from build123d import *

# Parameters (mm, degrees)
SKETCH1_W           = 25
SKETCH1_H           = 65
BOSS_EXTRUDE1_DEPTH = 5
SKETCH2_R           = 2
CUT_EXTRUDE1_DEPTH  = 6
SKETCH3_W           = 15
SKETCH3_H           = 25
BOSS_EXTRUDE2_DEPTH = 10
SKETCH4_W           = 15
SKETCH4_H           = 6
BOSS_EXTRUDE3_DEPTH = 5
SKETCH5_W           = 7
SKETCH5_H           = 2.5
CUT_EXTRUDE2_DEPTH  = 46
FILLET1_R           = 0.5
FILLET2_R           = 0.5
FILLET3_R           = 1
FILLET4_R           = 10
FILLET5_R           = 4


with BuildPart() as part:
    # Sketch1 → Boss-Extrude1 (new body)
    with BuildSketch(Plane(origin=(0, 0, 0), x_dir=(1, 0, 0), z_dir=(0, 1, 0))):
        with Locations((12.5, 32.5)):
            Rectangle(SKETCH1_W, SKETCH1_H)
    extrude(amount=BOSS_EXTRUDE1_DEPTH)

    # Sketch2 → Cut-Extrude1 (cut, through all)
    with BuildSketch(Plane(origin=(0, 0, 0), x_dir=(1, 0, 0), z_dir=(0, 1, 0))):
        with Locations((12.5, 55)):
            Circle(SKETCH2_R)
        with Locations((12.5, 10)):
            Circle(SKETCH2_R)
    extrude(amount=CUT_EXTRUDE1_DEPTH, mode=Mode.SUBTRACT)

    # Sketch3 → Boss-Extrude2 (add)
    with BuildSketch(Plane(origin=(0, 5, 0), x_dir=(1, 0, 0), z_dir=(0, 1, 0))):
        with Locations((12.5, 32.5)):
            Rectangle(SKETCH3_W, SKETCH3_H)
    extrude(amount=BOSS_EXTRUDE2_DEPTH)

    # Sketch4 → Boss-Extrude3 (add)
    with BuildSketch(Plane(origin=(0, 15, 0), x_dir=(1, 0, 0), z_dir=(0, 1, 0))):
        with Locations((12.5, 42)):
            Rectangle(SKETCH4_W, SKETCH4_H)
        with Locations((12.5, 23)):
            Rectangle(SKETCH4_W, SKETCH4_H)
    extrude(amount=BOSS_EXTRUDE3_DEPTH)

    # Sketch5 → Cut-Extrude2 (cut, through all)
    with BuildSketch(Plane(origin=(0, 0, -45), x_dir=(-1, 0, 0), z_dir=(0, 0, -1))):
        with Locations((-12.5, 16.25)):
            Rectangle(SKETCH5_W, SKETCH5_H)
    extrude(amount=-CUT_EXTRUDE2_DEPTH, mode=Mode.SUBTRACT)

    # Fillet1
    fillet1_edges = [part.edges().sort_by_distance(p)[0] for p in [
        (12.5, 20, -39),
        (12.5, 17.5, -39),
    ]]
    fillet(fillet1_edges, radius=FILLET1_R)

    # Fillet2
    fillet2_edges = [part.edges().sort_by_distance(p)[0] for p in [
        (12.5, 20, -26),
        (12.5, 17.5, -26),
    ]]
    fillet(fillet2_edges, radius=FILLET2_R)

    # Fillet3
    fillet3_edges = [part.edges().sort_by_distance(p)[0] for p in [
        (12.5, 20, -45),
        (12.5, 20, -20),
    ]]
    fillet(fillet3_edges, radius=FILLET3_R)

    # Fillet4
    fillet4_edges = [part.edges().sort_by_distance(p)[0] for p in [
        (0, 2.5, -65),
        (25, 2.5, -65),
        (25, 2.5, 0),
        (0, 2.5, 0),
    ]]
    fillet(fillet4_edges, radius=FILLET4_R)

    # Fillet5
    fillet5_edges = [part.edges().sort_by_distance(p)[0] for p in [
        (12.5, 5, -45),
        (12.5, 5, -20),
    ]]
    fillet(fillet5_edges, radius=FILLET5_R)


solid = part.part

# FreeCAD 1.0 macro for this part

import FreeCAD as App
import Part
import Sketcher

V = App.Vector
Q = App.Units.Quantity


def edges_at(feature, points):
    """Names of the edges that pass closest to the given points."""
    edges = feature.Shape.Edges
    near = lambda p: min(range(len(edges)), key=lambda i: edges[i].distToShape(Part.Vertex(*p))[0])
    return sorted({f"Edge{near(p) + 1}" for p in points})


def add_polygon(sketch, points):
    """Adds a closed chain of lines whose ends are joined by coincident constraints."""
    first, n = sketch.GeometryCount, len(points)
    for a, b in zip(points, points[1:] + points[:1]):
        sketch.addGeometry(Part.LineSegment(App.Vector(*a, 0), App.Vector(*b, 0)), False)
    for i in range(n):
        sketch.addConstraint(Sketcher.Constraint("Coincident", first + i, 2, first + (i + 1) % n, 1))

doc = App.newDocument("Part")
params = doc.addObject("Spreadsheet::Sheet", "Params")
for row, (alias, value) in enumerate([
    ("sketch1_width", "25 mm"),
    ("sketch1_height", "65 mm"),
    ("pad1_length", "5 mm"),
    ("sketch2_diameter", "4 mm"),
    ("sketch3_width", "15 mm"),
    ("sketch3_height", "25 mm"),
    ("pad2_length", "10 mm"),
    ("sketch4_width", "15 mm"),
    ("sketch4_height", "6 mm"),
    ("pad3_length", "5 mm"),
    ("sketch5_width", "7 mm"),
    ("sketch5_height", "2.5 mm"),
    ("fillet_radius", "0.5 mm"),
    ("fillet2_radius", "0.5 mm"),
    ("fillet3_radius", "1 mm"),
    ("fillet4_radius", "10 mm"),
    ("fillet5_radius", "4 mm"),
], start=1):
    params.set(f"A{row}", alias)
    params.set(f"B{row}", "=" + value)
    params.setAlias(f"B{row}", alias)

body = doc.addObject("PartDesign::Body", "Body")

# Sketch on XZ plane
sketch1 = body.newObject("Sketcher::SketchObject", "Sketch")
sketch1.AttachmentSupport = (doc.getObject("XZ_Plane"), [""])
sketch1.MapMode = "FlatFace"
add_polygon(sketch1, [(0, -65), (0, 0), (25, 0), (25, -65)])  # lines 0-3
sketch1.addConstraint(Sketcher.Constraint("Vertical", 0))
sketch1.addConstraint(Sketcher.Constraint("Horizontal", 1))
sketch1.addConstraint(Sketcher.Constraint("Vertical", 2))
sketch1.addConstraint(Sketcher.Constraint("Horizontal", 3))
sketch1.addConstraint(Sketcher.Constraint("Coincident", 0, 2, -1, 1))
sketch1.addConstraint(Sketcher.Constraint("DistanceX", 1, 1, 1, 2, Q("25 mm")))
sketch1.addConstraint(Sketcher.Constraint("DistanceY", 0, 1, 0, 2, Q("65 mm")))
sketch1.setExpression("Constraints[9]", "Params.sketch1_width")
sketch1.setExpression("Constraints[10]", "Params.sketch1_height")
pad1 = body.newObject("PartDesign::Pad", "Pad")
pad1.Profile = sketch1
pad1.setExpression("Length", "Params.pad1_length")
pad1.Reversed = True

# Sketch on XZ plane
sketch2 = body.newObject("Sketcher::SketchObject", "Sketch001")
sketch2.AttachmentSupport = (doc.getObject("XZ_Plane"), [""])
sketch2.MapMode = "FlatFace"
sketch2.addGeometry(Part.Circle(V(12.5, -55, 0), V(0, 0, 1), 2), False)
sketch2.addGeometry(Part.Circle(V(12.5, -10, 0), V(0, 0, 1), 2), False)
sketch2.addConstraint(Sketcher.Constraint("Equal", 0, 1))
sketch2.addConstraint(Sketcher.Constraint("Vertical", 0, 3, 1, 3))
sketch2.addConstraint(Sketcher.Constraint("Diameter", 0, Q("4 mm")))
sketch2.addConstraint(Sketcher.Constraint("DistanceY", 0, 3, -1, 1, Q("55 mm")))
sketch2.addConstraint(Sketcher.Constraint("DistanceY", 1, 3, -1, 1, Q("10 mm")))
sketch2.addConstraint(Sketcher.Constraint("DistanceX", -1, 1, 0, 3, Q("12.5 mm")))
sketch2.setExpression("Constraints[2]", "Params.sketch2_diameter")
pocket1 = body.newObject("PartDesign::Pocket", "Pocket")
pocket1.Profile = sketch2
pocket1.Type = "ThroughAll"

# Sketch on XZ plane
sketch3 = body.newObject("Sketcher::SketchObject", "Sketch002")
sketch3.AttachmentSupport = (doc.getObject("XZ_Plane"), [""])
sketch3.MapMode = "FlatFace"
sketch3.AttachmentOffset = App.Placement(V(0, 0, -5), App.Rotation())
add_polygon(sketch3, [(5, -45), (5, -20), (20, -20), (20, -45)])  # lines 0-3
sketch3.addConstraint(Sketcher.Constraint("Vertical", 0))
sketch3.addConstraint(Sketcher.Constraint("Horizontal", 1))
sketch3.addConstraint(Sketcher.Constraint("Vertical", 2))
sketch3.addConstraint(Sketcher.Constraint("Horizontal", 3))
sketch3.addConstraint(Sketcher.Constraint("DistanceX", 1, 1, 1, 2, Q("15 mm")))
sketch3.addConstraint(Sketcher.Constraint("DistanceY", 0, 1, 0, 2, Q("25 mm")))
sketch3.addConstraint(Sketcher.Constraint("DistanceX", -1, 1, 0, 2, Q("5 mm")))
sketch3.addConstraint(Sketcher.Constraint("DistanceY", 0, 2, -1, 1, Q("20 mm")))
sketch3.setExpression("Constraints[8]", "Params.sketch3_width")
sketch3.setExpression("Constraints[9]", "Params.sketch3_height")
pad2 = body.newObject("PartDesign::Pad", "Pad001")
pad2.Profile = sketch3
pad2.setExpression("Length", "Params.pad2_length")
pad2.Reversed = True

# Sketch on XZ plane
sketch4 = body.newObject("Sketcher::SketchObject", "Sketch003")
sketch4.AttachmentSupport = (doc.getObject("XZ_Plane"), [""])
sketch4.MapMode = "FlatFace"
sketch4.AttachmentOffset = App.Placement(V(0, 0, -15), App.Rotation())
add_polygon(sketch4, [(5, -45), (5, -39), (20, -39), (20, -45)])  # lines 0-3
add_polygon(sketch4, [(5, -26), (5, -20), (20, -20), (20, -26)])  # lines 4-7
sketch4.addConstraint(Sketcher.Constraint("Vertical", 0))
sketch4.addConstraint(Sketcher.Constraint("Horizontal", 1))
sketch4.addConstraint(Sketcher.Constraint("Vertical", 2))
sketch4.addConstraint(Sketcher.Constraint("Horizontal", 3))
sketch4.addConstraint(Sketcher.Constraint("Vertical", 4))
sketch4.addConstraint(Sketcher.Constraint("Horizontal", 5))
sketch4.addConstraint(Sketcher.Constraint("Vertical", 6))
sketch4.addConstraint(Sketcher.Constraint("Horizontal", 7))
sketch4.addConstraint(Sketcher.Constraint("Vertical", 3, 2, 4, 2))
sketch4.addConstraint(Sketcher.Constraint("Vertical", 2, 2, 5, 2))
sketch4.addConstraint(Sketcher.Constraint("Equal", 2, 4))
sketch4.addConstraint(Sketcher.Constraint("DistanceX", 1, 1, 1, 2, Q("15 mm")))
sketch4.addConstraint(Sketcher.Constraint("DistanceY", 0, 1, 0, 2, Q("6 mm")))
sketch4.addConstraint(Sketcher.Constraint("DistanceX", -1, 1, 0, 2, Q("5 mm")))
sketch4.addConstraint(Sketcher.Constraint("DistanceY", 0, 2, -1, 1, Q("39 mm")))
sketch4.addConstraint(Sketcher.Constraint("DistanceY", 4, 2, -1, 1, Q("20 mm")))
sketch4.setExpression("Constraints[19]", "Params.sketch4_width")
sketch4.setExpression("Constraints[20]", "Params.sketch4_height")
pad3 = body.newObject("PartDesign::Pad", "Pad002")
pad3.Profile = sketch4
pad3.setExpression("Length", "Params.pad3_length")
pad3.Reversed = True

# Sketch on XY plane
sketch5 = body.newObject("Sketcher::SketchObject", "Sketch004")
sketch5.AttachmentSupport = (doc.getObject("XY_Plane"), [""])
sketch5.MapMode = "FlatFace"
sketch5.AttachmentOffset = App.Placement(V(0, 0, -45), App.Rotation())
add_polygon(sketch5, [(16, 17.5), (16, 15), (9, 15), (9, 17.5)])  # lines 0-3
sketch5.addConstraint(Sketcher.Constraint("Vertical", 0))
sketch5.addConstraint(Sketcher.Constraint("Horizontal", 1))
sketch5.addConstraint(Sketcher.Constraint("Vertical", 2))
sketch5.addConstraint(Sketcher.Constraint("Horizontal", 3))
sketch5.addConstraint(Sketcher.Constraint("DistanceX", 1, 2, 1, 1, Q("7 mm")))
sketch5.addConstraint(Sketcher.Constraint("DistanceY", 0, 2, 0, 1, Q("2.5 mm")))
sketch5.addConstraint(Sketcher.Constraint("DistanceX", -1, 1, 0, 2, Q("16 mm")))
sketch5.addConstraint(Sketcher.Constraint("DistanceY", -1, 1, 0, 2, Q("15 mm")))
sketch5.setExpression("Constraints[8]", "Params.sketch5_width")
sketch5.setExpression("Constraints[9]", "Params.sketch5_height")
pocket2 = body.newObject("PartDesign::Pocket", "Pocket001")
pocket2.Profile = sketch5
pocket2.Type = "ThroughAll"
pocket2.Reversed = True
doc.recompute()

fillet = body.newObject("PartDesign::Fillet", "Fillet")
fillet.Base = (pocket2, edges_at(pocket2, [(12.5, 20, -39), (12.5, 17.5, -39)]))
fillet.setExpression("Radius", "Params.fillet_radius")
doc.recompute()

fillet2 = body.newObject("PartDesign::Fillet", "Fillet001")
fillet2.Base = (fillet, edges_at(fillet, [(12.5, 20, -26), (12.5, 17.5, -26)]))
fillet2.setExpression("Radius", "Params.fillet2_radius")
doc.recompute()

fillet3 = body.newObject("PartDesign::Fillet", "Fillet002")
fillet3.Base = (fillet2, edges_at(fillet2, [(12.5, 20, -45), (12.5, 20, -20)]))
fillet3.setExpression("Radius", "Params.fillet3_radius")
doc.recompute()

fillet4 = body.newObject("PartDesign::Fillet", "Fillet003")
fillet4.Base = (fillet3, edges_at(fillet3, [
    (0, 2.5, -65),
    (25, 2.5, -65),
    (25, 2.5, 0),
    (0, 2.5, 0),
]))
fillet4.setExpression("Radius", "Params.fillet4_radius")
doc.recompute()

fillet5 = body.newObject("PartDesign::Fillet", "Fillet004")
fillet5.Base = (fillet4, edges_at(fillet4, [(12.5, 5, -45), (12.5, 5, -20)]))
fillet5.setExpression("Radius", "Params.fillet5_radius")

doc.recompute()
